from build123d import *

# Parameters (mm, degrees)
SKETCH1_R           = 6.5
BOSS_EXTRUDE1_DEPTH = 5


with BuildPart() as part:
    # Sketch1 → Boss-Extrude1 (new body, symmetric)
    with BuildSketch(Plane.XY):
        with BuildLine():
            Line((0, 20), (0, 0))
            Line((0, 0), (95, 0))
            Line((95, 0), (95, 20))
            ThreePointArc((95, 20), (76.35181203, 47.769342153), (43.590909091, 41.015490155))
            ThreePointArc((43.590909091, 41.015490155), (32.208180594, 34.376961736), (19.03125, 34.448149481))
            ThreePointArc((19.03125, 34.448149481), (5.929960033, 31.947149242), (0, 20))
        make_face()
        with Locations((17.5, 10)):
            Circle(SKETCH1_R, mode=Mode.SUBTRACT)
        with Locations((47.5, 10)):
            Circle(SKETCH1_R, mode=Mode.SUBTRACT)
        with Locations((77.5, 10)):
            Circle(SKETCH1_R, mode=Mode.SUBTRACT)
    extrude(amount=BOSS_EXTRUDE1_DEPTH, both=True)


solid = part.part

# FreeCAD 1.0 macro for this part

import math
import FreeCAD as App
import Part
import Sketcher

V = App.Vector

doc = App.newDocument("Part")
body = doc.addObject("PartDesign::Body", "Body")

# Sketch on XY plane
sketch1 = body.newObject("Sketcher::SketchObject", "Sketch")
sketch1.AttachmentSupport = (doc.getObject("XY_Plane"), [""])
sketch1.MapMode = "FlatFace"
sketch1.addGeometry([
    Part.LineSegment(V(0, 20, 0), V(0, 0, 0)),  # 0
    Part.LineSegment(V(0, 0, 0), V(95, 0, 0)),  # 1
    Part.LineSegment(V(95, 0, 0), V(95, 20, 0)),  # 2
    Part.ArcOfCircle(Part.Circle(V(65, 20, 0), V(0, 0, 1), 30), math.radians(0), math.radians(136)),  # 3
    Part.ArcOfCircle(Part.Circle(V(26, 59, 0), V(0, 0, 1), 25), math.radians(-106), math.radians(-44)),  # 4
    Part.ArcOfCircle(Part.Circle(V(15, 20, 0), V(0, 0, 1), 15), math.radians(74), math.radians(180)),  # 5
    Part.Circle(V(18, 10, 0), V(0, 0, 1), 6),  # 6
    Part.Circle(V(48, 10, 0), V(0, 0, 1), 6),  # 7
    Part.Circle(V(78, 10, 0), V(0, 0, 1), 6),  # 8
], False)
sketch1.addConstraint([
    Sketcher.Constraint("Coincident", 0, 2, 1, 1),
    Sketcher.Constraint("Coincident", 1, 2, 2, 1),
    Sketcher.Constraint("Tangent", 2, 2, 3, 1),
    Sketcher.Constraint("Tangent", 3, 2, 4, 2),
    Sketcher.Constraint("Tangent", 4, 1, 5, 1),
    Sketcher.Constraint("Tangent", 5, 2, 0, 1),
    Sketcher.Constraint("Vertical", 0),
    Sketcher.Constraint("Horizontal", 1),
    Sketcher.Constraint("Vertical", 2),
    Sketcher.Constraint("Coincident", 0, 2, -1, 1),
    Sketcher.Constraint("Equal", 6, 7),
    Sketcher.Constraint("Equal", 7, 8),
    Sketcher.Constraint("Horizontal", 3, 3, 5, 3),
    Sketcher.Constraint("Horizontal", 6, 3, 7, 3),
    Sketcher.Constraint("Horizontal", 7, 3, 8, 3),
    Sketcher.Constraint("Diameter", 6, 13.0),
    Sketcher.Constraint("Radius", 3, 30.0),
    Sketcher.Constraint("Radius", 4, 25.0),
    Sketcher.Constraint("Radius", 5, 15.0),
    Sketcher.Constraint("DistanceX", 1, 1, 1, 2, 95.0),
    Sketcher.Constraint("DistanceY", 0, 2, 0, 1, 20.0),
    Sketcher.Constraint("DistanceY", -1, 1, 6, 3, 10.0),
    Sketcher.Constraint("DistanceX", 6, 3, 7, 3, 30.0),
    Sketcher.Constraint("DistanceX", 7, 3, 8, 3, 30.0),
    Sketcher.Constraint("DistanceX", -1, 1, 6, 3, 17.5),
])
pad1 = body.newObject("PartDesign::Pad", "Pad")
pad1.Profile = sketch1
pad1.Length = 10
pad1.Midplane = True

doc.recompute()
